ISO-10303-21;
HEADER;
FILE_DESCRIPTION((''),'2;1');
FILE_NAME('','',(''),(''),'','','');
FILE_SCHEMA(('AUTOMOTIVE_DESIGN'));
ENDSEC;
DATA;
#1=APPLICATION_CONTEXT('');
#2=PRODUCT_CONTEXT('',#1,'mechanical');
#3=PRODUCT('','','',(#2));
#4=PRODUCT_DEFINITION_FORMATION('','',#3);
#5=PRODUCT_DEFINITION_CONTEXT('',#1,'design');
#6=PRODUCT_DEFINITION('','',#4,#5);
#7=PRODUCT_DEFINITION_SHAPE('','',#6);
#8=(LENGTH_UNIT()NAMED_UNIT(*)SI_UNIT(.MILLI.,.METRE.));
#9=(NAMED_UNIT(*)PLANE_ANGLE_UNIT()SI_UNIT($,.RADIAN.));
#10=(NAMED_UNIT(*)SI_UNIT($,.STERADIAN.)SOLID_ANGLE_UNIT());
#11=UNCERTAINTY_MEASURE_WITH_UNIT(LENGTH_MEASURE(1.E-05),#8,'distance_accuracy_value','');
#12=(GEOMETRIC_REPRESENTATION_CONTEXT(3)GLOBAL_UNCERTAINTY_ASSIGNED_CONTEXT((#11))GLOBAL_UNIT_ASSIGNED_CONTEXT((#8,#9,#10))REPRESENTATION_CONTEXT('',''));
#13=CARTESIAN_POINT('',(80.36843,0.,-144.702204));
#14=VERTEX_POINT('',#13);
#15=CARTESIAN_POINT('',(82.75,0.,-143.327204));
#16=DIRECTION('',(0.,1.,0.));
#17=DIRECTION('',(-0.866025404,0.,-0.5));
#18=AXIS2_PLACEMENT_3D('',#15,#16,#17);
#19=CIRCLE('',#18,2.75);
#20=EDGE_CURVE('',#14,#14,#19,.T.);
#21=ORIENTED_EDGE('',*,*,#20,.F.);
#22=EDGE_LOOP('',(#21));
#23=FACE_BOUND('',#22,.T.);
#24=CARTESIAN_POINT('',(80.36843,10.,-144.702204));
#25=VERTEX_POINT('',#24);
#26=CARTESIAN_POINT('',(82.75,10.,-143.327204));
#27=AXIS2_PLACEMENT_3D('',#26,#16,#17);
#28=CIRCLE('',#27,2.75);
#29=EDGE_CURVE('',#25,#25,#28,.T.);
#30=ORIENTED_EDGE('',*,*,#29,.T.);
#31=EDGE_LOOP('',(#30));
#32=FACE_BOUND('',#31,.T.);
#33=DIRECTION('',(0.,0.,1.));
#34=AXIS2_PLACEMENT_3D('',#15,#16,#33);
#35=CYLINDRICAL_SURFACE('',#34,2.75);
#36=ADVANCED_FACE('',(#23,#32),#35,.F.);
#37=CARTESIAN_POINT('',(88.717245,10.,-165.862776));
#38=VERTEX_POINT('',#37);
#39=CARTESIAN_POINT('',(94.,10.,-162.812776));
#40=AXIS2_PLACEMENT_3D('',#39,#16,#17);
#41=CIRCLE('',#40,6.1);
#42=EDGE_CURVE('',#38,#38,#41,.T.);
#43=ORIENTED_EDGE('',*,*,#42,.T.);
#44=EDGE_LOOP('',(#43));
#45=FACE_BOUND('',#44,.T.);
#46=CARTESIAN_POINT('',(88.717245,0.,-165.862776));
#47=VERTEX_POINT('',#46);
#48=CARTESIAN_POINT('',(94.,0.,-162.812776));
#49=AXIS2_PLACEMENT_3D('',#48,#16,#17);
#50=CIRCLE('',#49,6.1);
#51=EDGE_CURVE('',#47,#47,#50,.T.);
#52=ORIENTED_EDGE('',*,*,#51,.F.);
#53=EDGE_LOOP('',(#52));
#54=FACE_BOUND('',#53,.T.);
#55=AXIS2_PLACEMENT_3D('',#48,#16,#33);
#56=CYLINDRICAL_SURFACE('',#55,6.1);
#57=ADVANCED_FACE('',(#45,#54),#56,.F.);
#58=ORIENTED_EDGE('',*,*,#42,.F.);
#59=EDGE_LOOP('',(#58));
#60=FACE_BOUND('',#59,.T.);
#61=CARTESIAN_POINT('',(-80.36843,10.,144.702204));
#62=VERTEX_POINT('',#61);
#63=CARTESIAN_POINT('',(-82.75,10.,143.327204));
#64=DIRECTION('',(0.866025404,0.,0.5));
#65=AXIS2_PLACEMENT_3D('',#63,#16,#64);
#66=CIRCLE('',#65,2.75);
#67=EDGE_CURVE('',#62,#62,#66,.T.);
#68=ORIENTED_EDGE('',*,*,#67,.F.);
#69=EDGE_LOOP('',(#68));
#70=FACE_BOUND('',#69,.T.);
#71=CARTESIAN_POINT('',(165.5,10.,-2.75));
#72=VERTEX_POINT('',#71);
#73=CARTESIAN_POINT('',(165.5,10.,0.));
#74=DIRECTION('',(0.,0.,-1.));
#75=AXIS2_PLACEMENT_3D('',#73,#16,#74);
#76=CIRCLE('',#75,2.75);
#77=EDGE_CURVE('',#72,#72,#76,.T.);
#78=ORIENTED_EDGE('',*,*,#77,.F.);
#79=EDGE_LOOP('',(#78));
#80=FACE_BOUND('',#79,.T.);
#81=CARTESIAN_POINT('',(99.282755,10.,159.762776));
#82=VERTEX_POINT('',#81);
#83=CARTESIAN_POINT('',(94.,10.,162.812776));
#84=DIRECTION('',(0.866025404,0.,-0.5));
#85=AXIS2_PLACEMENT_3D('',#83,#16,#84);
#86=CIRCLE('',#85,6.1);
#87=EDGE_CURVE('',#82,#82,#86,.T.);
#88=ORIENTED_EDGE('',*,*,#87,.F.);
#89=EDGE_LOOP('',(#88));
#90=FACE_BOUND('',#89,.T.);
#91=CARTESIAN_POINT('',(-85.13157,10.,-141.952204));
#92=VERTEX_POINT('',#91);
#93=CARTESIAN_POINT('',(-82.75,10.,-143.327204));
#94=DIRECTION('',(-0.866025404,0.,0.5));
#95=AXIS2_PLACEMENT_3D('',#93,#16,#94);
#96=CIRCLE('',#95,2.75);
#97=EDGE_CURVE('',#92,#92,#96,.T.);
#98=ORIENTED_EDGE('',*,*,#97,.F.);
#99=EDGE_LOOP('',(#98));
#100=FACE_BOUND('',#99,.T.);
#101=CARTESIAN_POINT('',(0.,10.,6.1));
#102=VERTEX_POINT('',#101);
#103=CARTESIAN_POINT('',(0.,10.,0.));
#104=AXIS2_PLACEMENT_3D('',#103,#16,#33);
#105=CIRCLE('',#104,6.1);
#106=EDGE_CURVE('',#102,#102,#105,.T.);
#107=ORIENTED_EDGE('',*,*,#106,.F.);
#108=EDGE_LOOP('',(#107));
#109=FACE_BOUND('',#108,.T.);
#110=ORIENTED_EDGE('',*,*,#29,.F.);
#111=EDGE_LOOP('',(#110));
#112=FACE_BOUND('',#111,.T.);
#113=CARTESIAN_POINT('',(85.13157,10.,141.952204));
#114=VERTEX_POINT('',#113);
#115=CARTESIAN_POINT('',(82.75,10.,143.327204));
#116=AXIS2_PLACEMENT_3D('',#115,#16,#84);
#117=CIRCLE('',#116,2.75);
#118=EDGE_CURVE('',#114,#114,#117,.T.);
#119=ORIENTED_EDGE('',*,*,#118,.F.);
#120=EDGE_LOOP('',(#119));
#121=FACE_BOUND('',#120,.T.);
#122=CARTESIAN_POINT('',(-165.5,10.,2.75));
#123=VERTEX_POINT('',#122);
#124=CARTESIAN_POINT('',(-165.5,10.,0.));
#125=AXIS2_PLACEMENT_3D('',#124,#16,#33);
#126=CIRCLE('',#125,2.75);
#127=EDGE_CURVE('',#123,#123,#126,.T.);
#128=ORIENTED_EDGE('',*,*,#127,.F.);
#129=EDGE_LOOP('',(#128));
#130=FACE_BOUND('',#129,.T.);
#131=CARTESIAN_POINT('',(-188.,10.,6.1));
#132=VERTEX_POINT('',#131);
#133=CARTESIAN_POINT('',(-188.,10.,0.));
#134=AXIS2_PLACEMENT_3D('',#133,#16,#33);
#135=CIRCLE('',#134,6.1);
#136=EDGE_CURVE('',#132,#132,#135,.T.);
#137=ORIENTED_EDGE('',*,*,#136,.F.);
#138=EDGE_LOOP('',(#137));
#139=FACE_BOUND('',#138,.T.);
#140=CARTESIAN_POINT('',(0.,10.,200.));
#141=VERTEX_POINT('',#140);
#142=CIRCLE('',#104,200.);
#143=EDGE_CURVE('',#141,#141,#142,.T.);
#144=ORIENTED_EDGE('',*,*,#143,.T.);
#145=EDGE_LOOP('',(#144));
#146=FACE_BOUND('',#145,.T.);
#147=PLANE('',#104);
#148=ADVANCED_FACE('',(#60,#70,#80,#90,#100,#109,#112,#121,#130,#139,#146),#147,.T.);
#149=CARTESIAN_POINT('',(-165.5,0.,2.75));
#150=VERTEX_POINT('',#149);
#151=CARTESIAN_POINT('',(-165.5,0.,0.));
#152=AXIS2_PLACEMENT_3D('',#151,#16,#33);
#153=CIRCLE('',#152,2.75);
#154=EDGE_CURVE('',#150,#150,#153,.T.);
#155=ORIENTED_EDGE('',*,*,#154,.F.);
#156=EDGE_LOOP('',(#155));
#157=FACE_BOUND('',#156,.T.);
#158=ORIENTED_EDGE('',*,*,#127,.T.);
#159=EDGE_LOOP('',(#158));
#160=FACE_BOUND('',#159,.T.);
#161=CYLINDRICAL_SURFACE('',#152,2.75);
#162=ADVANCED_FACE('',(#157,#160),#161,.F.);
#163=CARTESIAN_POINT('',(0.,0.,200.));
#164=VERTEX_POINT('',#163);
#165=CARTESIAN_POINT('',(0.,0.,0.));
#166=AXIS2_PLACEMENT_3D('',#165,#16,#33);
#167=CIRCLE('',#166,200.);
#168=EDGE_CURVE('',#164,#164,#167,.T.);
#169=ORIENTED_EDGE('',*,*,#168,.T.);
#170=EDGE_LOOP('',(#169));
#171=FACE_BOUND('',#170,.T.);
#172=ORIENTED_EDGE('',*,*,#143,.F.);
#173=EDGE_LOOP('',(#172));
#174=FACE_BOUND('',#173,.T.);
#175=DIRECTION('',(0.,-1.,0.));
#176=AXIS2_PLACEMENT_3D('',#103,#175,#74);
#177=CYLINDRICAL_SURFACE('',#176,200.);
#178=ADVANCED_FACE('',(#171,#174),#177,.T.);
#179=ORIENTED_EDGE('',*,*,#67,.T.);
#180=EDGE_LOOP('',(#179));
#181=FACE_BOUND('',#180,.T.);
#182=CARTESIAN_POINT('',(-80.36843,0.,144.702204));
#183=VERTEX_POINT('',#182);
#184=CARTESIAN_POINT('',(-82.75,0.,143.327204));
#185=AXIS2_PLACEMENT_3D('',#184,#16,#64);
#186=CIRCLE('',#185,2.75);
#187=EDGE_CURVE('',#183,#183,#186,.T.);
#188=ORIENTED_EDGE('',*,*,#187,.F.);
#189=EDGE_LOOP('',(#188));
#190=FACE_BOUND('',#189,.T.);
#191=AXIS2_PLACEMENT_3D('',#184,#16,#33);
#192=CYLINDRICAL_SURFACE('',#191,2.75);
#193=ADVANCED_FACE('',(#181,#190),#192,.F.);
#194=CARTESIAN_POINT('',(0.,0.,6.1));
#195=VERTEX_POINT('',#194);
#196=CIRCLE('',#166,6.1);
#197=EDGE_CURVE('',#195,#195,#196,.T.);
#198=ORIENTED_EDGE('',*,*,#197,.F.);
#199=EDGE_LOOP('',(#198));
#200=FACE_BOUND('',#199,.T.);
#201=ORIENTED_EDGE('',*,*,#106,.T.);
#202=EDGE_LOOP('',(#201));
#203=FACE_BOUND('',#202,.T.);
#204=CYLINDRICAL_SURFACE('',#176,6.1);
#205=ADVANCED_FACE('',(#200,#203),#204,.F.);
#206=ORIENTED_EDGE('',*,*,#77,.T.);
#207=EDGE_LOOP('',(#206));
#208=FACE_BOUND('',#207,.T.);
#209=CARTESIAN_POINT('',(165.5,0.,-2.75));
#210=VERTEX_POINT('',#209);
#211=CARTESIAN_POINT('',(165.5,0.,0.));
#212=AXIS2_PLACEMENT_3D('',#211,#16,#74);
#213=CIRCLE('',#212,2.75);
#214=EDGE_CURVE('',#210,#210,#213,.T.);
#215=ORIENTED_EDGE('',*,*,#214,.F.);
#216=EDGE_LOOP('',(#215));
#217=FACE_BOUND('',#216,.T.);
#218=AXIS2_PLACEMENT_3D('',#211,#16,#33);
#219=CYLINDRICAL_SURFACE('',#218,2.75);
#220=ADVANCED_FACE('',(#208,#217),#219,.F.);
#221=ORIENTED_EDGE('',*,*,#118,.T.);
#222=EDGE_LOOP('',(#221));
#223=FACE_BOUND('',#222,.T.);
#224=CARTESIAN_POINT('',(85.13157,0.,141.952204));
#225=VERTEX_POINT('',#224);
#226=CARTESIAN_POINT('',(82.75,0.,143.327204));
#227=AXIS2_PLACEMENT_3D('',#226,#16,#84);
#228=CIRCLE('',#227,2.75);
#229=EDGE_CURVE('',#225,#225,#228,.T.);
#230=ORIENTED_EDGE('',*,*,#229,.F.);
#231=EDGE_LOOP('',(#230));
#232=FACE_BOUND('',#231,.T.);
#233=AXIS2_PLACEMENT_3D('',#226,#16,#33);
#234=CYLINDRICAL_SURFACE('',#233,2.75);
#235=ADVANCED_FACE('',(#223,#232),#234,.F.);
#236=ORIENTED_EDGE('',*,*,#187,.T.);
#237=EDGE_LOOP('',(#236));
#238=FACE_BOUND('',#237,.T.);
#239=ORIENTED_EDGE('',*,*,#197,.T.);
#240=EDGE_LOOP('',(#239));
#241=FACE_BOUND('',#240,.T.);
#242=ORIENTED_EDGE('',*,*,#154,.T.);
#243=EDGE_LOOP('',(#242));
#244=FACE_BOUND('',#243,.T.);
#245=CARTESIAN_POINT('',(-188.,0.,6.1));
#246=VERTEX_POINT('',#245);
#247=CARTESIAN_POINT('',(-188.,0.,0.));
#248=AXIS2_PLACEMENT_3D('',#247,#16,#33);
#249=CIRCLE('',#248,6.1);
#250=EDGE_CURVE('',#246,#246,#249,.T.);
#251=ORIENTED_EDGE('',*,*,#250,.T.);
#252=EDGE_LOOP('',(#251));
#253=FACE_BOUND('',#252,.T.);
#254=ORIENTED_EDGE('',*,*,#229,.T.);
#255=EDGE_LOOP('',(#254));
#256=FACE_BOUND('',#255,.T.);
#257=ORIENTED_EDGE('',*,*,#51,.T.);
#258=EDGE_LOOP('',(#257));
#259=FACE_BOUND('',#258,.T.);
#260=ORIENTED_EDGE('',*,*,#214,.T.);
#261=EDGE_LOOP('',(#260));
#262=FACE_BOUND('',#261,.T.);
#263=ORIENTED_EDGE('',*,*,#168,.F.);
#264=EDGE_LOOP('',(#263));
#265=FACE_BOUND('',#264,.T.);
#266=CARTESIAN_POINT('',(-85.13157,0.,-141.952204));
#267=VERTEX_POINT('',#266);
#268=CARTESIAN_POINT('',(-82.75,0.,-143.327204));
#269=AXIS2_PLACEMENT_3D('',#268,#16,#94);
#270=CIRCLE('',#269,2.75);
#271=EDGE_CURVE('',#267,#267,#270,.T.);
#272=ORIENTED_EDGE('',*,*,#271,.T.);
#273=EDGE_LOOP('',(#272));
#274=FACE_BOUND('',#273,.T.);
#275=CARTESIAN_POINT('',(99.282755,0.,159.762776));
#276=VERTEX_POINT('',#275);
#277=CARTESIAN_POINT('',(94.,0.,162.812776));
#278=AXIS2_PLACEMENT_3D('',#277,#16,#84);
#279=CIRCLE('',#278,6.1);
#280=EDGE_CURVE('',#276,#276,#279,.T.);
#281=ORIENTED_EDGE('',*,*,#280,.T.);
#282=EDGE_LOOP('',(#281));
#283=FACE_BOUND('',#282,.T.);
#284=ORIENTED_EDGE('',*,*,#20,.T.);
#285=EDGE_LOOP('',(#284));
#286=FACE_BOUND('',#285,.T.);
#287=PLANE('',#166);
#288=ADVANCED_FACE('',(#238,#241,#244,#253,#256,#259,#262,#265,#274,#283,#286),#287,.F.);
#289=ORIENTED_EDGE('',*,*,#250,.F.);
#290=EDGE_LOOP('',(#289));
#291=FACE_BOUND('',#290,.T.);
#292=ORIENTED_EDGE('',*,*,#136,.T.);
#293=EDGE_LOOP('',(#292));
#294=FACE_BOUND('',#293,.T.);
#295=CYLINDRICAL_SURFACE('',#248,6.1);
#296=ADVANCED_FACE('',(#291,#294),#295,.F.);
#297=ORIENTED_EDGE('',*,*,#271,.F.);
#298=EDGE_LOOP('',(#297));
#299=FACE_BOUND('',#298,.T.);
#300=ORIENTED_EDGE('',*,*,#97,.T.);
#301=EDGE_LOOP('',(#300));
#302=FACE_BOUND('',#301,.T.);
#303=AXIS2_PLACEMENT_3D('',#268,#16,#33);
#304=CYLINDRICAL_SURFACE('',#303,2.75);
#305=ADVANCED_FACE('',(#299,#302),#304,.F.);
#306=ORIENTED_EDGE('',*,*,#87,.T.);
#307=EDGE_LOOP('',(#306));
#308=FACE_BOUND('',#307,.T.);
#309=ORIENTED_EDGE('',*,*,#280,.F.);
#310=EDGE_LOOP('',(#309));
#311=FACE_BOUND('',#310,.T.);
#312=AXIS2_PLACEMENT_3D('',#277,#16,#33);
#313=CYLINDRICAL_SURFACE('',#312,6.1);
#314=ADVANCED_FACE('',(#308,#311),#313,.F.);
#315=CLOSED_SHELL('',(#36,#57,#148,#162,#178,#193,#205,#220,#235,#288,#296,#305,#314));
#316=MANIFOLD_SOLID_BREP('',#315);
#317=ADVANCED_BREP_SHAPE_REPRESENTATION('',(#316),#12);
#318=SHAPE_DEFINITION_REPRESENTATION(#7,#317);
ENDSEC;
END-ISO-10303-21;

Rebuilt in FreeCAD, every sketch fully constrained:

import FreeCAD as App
import Part
import Sketcher
from FreeCAD import Vector
Q = App.Units.Quantity

doc = App.newDocument("Part")
body = doc.addObject("PartDesign::Body", "Body")

# Sketch on XZ plane
sketch1 = body.newObject("Sketcher::SketchObject", "Sketch")
sketch1.AttachmentSupport = (doc.getObject("XZ_Plane"), [""])
sketch1.MapMode = "FlatFace"
sketch1.addGeometry([
    Part.Circle(Vector(0, 0, 0), Vector(0, 0, 1), 200),
    Part.Circle(Vector(0, 0, 0), Vector(0, 0, 1), 6.1),
], False)
sketch1.addConstraint([
    Sketcher.Constraint("Coincident", 0, 3, -1, 1),
    Sketcher.Constraint("Coincident", 1, 3, -1, 1),
    Sketcher.Constraint("Diameter", 0, Q("400 mm")),
    Sketcher.Constraint("Diameter", 1, Q("12.2 mm")),
])
pad1 = body.newObject("PartDesign::Pad", "Pad")
pad1.Profile = sketch1
pad1.Length = 10
pad1.Reversed = True

# Sketch on XZ plane
sketch2 = body.newObject("Sketcher::SketchObject", "Sketch001")
sketch2.AttachmentSupport = (doc.getObject("XZ_Plane"), [""])
sketch2.MapMode = "FlatFace"
sketch2.AttachmentOffset = App.Placement(Vector(0, 0, -10), App.Rotation())
sketch2.addGeometry(Part.Circle(Vector(-188, 0, 0), Vector(0, 0, 1), 6.1), False)
sketch2.addConstraint([
    Sketcher.Constraint("PointOnObject", 0, 3, -1),
    Sketcher.Constraint("Diameter", 0, Q("12.2 mm")),
    Sketcher.Constraint("DistanceX", 0, 3, -1, 1, Q("188 mm")),
])
pocket1 = body.newObject("PartDesign::Pocket", "Pocket")
pocket1.Profile = sketch2
pocket1.Length = 10
pocket1.Reversed = True
doc.recompute()

polarpattern = body.newObject("PartDesign::PolarPattern", "PolarPattern")
polarpattern.Originals = [pocket1]
polarpattern.Axis = (doc.getObject("Y_Axis"), [""])
polarpattern.Angle = 360
polarpattern.Occurrences = 3
body.Tip = polarpattern

# Sketch on XZ plane
sketch3 = body.newObject("Sketcher::SketchObject", "Sketch002")
sketch3.AttachmentSupport = (doc.getObject("XZ_Plane"), [""])
sketch3.MapMode = "FlatFace"
sketch3.AttachmentOffset = App.Placement(Vector(0, 0, -10), App.Rotation())
sketch3.addGeometry(Part.Circle(Vector(-165.5, 0, 0), Vector(0, 0, 1), 2.75), False)
sketch3.addConstraint([
    Sketcher.Constraint("PointOnObject", 0, 3, -1),
    Sketcher.Constraint("Diameter", 0, Q("5.5 mm")),
    Sketcher.Constraint("DistanceX", 0, 3, -1, 1, Q("165.5 mm")),
])
pocket2 = body.newObject("PartDesign::Pocket", "Pocket001")
pocket2.Profile = sketch3
pocket2.Length = 10
pocket2.Reversed = True
doc.recompute()

polarpattern2 = body.newObject("PartDesign::PolarPattern", "PolarPattern001")
polarpattern2.Originals = [pocket2]
polarpattern2.Axis = (doc.getObject("Y_Axis"), [""])
polarpattern2.Angle = 360
polarpattern2.Occurrences = 6
body.Tip = polarpattern2

doc.recompute()
